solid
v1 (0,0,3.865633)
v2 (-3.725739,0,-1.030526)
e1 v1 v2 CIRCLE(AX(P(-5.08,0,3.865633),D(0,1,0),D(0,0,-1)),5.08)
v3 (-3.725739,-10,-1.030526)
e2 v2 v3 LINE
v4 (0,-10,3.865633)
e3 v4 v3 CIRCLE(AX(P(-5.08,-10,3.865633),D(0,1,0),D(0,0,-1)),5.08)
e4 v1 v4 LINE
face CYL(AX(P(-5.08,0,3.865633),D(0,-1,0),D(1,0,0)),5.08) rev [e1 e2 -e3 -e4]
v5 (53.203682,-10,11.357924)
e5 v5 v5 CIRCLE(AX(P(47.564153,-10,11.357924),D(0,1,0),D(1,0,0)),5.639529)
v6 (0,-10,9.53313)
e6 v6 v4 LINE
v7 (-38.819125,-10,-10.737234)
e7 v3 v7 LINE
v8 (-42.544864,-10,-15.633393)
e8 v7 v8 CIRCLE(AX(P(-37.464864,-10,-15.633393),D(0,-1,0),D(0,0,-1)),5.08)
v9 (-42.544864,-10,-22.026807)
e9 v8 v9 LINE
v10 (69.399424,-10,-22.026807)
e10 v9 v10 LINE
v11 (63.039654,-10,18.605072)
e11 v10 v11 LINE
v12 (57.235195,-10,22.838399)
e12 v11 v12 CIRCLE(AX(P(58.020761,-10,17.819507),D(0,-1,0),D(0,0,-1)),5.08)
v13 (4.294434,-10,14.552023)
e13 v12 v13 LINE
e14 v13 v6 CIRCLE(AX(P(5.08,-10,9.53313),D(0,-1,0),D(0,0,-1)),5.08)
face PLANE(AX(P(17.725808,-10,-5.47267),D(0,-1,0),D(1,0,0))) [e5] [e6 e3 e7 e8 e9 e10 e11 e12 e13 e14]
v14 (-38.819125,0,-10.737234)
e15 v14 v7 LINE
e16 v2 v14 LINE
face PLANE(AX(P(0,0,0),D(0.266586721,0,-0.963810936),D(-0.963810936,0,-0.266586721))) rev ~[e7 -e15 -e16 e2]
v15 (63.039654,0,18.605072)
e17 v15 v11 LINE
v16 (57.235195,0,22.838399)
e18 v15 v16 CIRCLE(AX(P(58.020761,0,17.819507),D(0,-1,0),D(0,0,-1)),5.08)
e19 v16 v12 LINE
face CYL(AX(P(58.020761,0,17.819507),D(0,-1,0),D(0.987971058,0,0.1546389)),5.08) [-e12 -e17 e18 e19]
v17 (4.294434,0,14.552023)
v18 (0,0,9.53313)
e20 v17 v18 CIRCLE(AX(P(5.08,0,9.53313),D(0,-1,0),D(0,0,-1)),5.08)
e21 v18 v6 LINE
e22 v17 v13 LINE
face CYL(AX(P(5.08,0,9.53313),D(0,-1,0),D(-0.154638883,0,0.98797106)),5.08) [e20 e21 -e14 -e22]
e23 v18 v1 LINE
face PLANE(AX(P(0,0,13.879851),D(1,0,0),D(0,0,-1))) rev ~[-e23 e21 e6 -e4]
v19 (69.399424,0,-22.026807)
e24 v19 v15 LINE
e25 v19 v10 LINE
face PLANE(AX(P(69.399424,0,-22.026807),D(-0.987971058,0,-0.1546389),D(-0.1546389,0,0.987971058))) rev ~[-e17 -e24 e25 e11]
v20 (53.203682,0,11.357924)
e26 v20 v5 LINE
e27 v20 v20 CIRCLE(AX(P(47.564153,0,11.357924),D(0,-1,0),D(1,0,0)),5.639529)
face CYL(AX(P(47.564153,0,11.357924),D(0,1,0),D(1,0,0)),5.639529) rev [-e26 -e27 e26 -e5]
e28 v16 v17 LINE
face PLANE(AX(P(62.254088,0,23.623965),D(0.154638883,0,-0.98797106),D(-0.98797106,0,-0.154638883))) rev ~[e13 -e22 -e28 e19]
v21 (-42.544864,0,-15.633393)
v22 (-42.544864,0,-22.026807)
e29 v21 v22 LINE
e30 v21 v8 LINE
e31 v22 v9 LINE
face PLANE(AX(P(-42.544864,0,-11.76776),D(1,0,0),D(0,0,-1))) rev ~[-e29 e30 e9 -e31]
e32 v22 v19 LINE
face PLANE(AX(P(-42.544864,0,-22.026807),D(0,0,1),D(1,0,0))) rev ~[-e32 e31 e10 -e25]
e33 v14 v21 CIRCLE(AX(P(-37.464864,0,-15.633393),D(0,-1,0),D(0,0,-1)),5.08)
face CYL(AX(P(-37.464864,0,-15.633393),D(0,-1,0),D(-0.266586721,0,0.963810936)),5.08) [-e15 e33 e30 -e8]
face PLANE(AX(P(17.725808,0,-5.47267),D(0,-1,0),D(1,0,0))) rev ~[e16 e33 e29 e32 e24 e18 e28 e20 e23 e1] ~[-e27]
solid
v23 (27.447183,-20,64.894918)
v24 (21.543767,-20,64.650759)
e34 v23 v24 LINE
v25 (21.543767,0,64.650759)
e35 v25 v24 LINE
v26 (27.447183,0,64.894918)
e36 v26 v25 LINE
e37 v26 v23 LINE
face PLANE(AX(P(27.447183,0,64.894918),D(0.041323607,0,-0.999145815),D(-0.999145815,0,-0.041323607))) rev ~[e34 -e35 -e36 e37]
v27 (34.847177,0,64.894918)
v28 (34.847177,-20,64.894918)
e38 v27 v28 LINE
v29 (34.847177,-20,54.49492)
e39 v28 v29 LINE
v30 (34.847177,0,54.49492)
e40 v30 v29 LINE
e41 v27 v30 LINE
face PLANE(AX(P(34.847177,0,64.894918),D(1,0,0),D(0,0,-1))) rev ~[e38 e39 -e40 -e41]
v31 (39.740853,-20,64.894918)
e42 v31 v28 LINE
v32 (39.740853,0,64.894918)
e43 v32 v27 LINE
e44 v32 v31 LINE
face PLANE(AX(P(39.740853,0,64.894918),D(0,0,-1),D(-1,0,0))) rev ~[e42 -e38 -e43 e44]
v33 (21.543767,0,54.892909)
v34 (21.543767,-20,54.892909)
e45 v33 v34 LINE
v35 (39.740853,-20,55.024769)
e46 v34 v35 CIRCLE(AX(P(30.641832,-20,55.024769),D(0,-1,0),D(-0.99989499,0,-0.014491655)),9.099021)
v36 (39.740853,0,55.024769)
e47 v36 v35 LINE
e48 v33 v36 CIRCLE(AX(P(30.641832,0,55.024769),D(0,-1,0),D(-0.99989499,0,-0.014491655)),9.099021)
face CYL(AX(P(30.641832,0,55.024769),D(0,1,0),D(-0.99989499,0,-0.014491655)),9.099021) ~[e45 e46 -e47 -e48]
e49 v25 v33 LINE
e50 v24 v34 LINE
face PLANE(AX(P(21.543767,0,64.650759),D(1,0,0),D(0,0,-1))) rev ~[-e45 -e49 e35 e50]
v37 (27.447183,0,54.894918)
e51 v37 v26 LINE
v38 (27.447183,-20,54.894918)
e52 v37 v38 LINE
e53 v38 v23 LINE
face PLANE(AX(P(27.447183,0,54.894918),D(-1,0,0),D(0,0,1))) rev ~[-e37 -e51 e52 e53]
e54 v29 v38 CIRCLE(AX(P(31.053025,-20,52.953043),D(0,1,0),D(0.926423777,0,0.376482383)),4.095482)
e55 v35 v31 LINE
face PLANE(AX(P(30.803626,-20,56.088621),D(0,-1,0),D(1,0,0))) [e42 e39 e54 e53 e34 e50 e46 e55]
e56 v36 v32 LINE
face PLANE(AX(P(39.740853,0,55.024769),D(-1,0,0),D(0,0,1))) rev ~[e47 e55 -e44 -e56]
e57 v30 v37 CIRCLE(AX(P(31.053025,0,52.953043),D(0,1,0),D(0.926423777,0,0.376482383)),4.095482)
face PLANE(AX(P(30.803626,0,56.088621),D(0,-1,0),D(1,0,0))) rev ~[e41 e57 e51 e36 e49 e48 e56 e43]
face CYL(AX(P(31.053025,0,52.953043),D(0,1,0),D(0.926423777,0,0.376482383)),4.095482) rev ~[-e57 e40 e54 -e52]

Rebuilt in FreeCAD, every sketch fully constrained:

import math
import FreeCAD as App
import Part
import Sketcher
from FreeCAD import Vector


def edges_at(feature, points):
    """Names of the edges that pass closest to the given points."""
    edges = feature.Shape.Edges
    near = lambda p: min(range(len(edges)), key=lambda i: edges[i].distToShape(Part.Vertex(*p))[0])
    return sorted({f"Edge{near(p) + 1}" for p in points})

doc = App.newDocument("Part")
params = doc.addObject("Spreadsheet::Sheet", "Params")
for row, (alias, value) in enumerate([
    ("pad1_length", "10 mm"),
    ("fillet_radius", "5.08 mm"),
    ("pocket1_length", "93.354344 mm"),
    ("sketch3_height", "10 mm"),
    ("sketch3_height2", "10.399998 mm"),
    ("pad2_length", "20 mm"),
], start=1):
    params.set(f"A{row}", alias)
    params.set(f"B{row}", "=" + value)
    params.setAlias(f"B{row}", alias)

body = doc.addObject("PartDesign::Body", "Body")

sketch1 = body.newObject("Sketcher::SketchObject", "Sketch")
sketch1.AttachmentSupport = (doc.getObject("XZ_Plane"), [""])
sketch1.MapMode = "FlatFace"
sketch1.addGeometry([
    Part.LineSegment(Vector(69.399424, -22.026807, 0), Vector(62.254088, 23.623965, 0)),
    Part.LineSegment(Vector(62.254088, 23.623965, 0), Vector(0, 13.879851, 0)),
    Part.LineSegment(Vector(0, 13.879851, 0), Vector(0, 0, 0)),
    Part.LineSegment(Vector(0, 0, 0), Vector(-42.544864, -11.76776, 0)),
    Part.LineSegment(Vector(-42.544864, -11.76776, 0), Vector(-42.544864, -22.026807, 0)),
    Part.LineSegment(Vector(-42.544864, -22.026807, 0), Vector(69.399424, -22.026807, 0)),
], False)
sketch1.addConstraint([
    Sketcher.Constraint("Coincident", 0, 2, 1, 1),
    Sketcher.Constraint("Coincident", 1, 2, 2, 1),
    Sketcher.Constraint("Coincident", 2, 2, 3, 1),
    Sketcher.Constraint("Coincident", 3, 2, 4, 1),
    Sketcher.Constraint("Coincident", 4, 2, 5, 1),
    Sketcher.Constraint("Coincident", 5, 2, 0, 1),
    Sketcher.Constraint("Vertical", 2),
    Sketcher.Constraint("Vertical", 4),
    Sketcher.Constraint("Horizontal", 5),
    Sketcher.Constraint("Coincident", 2, 2, -1, 1),
    Sketcher.Constraint("Perpendicular", 0, 1),
    Sketcher.Constraint("DistanceX", 5, 1, 5, 2, 111.944288),
    Sketcher.Constraint("DistanceY", 2, 2, 2, 1, 13.879851),
    Sketcher.Constraint("Distance", 0, 46.206588),
    Sketcher.Constraint("DistanceY", 4, 2, 4, 1, 10.259047),
    Sketcher.Constraint("DistanceX", -1, 1, 0, 2, 62.254088),
    Sketcher.Constraint("DistanceY", 3, 2, -1, 1, 11.76776),
])
pad1 = body.newObject("PartDesign::Pad", "Pad")
pad1.Profile = sketch1
pad1.setExpression("Length", "Params.pad1_length")
doc.recompute()

fillet = body.newObject("PartDesign::Fillet", "Fillet")
fillet.Base = (pad1, edges_at(pad1, [
    (62.254, -5, 23.624),
    (0, -5, 13.88),
    (0, -5, 0),
    (-42.545, -5, -11.768),
]))
fillet.setExpression("Radius", "Params.fillet_radius")

sketch2 = body.newObject("Sketcher::SketchObject", "Sketch001")
sketch2.AttachmentSupport = (doc.getObject("XZ_Plane"), [""])
sketch2.MapMode = "FlatFace"
sketch2.addGeometry(Part.Circle(Vector(47.564153, 11.357924, 0), Vector(0, 0, 1), 5.639529), False)
sketch2.addConstraint([
    Sketcher.Constraint("Diameter", 0, 11.279058),
    Sketcher.Constraint("DistanceX", -1, 1, 0, 3, 47.564153),
    Sketcher.Constraint("DistanceY", -1, 1, 0, 3, 11.357924),
])
pocket1 = body.newObject("PartDesign::Pocket", "Pocket")
pocket1.Profile = sketch2
pocket1.setExpression("Length", "Params.pocket1_length")
pocket1.Reversed = True
body2 = doc.addObject("PartDesign::Body", "Body001")

sketch3 = body2.newObject("Sketcher::SketchObject", "Sketch002")
sketch3.AttachmentSupport = (doc.getObject("XZ_Plane001"), [""])
sketch3.MapMode = "FlatFace"
sketch3.addGeometry([
    Part.ArcOfCircle(Part.Circle(Vector(31.053025, 52.953043, 0), Vector(0, 0, 1), 4.095482), math.radians(151.695947), math.radians(382.115963)),
    Part.LineSegment(Vector(27.447183, 54.894918, 0), Vector(27.447183, 64.894918, 0)),
    Part.LineSegment(Vector(27.447183, 64.894918, 0), Vector(21.543767, 64.650759, 0)),
    Part.LineSegment(Vector(21.543767, 64.650759, 0), Vector(21.543767, 54.892909, 0)),
    Part.ArcOfCircle(Part.Circle(Vector(30.641832, 55.024769, 0), Vector(0, 0, 1), 9.099021), math.radians(-179.16966), math.radians(0.000001)),
    Part.LineSegment(Vector(39.740853, 55.024769, 0), Vector(39.740853, 64.894918, 0)),
    Part.LineSegment(Vector(39.740853, 64.894918, 0), Vector(34.847177, 64.894918, 0)),
    Part.LineSegment(Vector(34.847177, 64.894918, 0), Vector(34.847177, 54.49492, 0)),
], False)
sketch3.addConstraint([
    Sketcher.Constraint("Coincident", 0, 1, 1, 1),
    Sketcher.Constraint("Coincident", 1, 2, 2, 1),
    Sketcher.Constraint("Coincident", 2, 2, 3, 1),
    Sketcher.Constraint("Coincident", 3, 2, 4, 1),
    Sketcher.Constraint("Tangent", 4, 2, 5, 1),
    Sketcher.Constraint("Coincident", 5, 2, 6, 1),
    Sketcher.Constraint("Coincident", 6, 2, 7, 1),
    Sketcher.Constraint("Coincident", 7, 2, 0, 2),
    Sketcher.Constraint("Vertical", 1),
    Sketcher.Constraint("Vertical", 3),
    Sketcher.Constraint("Vertical", 5),
    Sketcher.Constraint("Horizontal", 6),
    Sketcher.Constraint("Vertical", 7),
    Sketcher.Constraint("Horizontal", 1, 2, 5, 2),
    Sketcher.Constraint("DistanceY", 1, 1, 1, 2, 10.0),
    Sketcher.Constraint("DistanceY", 7, 2, 7, 1, 10.399998),
    Sketcher.Constraint("Radius", 4, 9.099021),
    Sketcher.Constraint("Radius", 0, 4.095482),
    Sketcher.Constraint("DistanceY", 3, 2, 3, 1, 9.75785),
    Sketcher.Constraint("DistanceY", 5, 1, 5, 2, 9.870149),
    Sketcher.Constraint("DistanceX", 6, 2, 6, 1, 4.893676),
    Sketcher.Constraint("DistanceY", -1, 1, 4, 3, 55.024769),
    Sketcher.Constraint("DistanceY", -1, 1, 2, 2, 64.650759),
    Sketcher.Constraint("DistanceX", 0, 1, 4, 3, 3.194649),
    Sketcher.Constraint("DistanceX", -1, 1, 0, 3, 31.053025),
])
sketch3.setExpression("Constraints[14]", "Params.sketch3_height")
sketch3.setExpression("Constraints[15]", "Params.sketch3_height2")
pad2 = body2.newObject("PartDesign::Pad", "Pad001")
pad2.Profile = sketch3
pad2.setExpression("Length", "Params.pad2_length")

doc.recompute()
